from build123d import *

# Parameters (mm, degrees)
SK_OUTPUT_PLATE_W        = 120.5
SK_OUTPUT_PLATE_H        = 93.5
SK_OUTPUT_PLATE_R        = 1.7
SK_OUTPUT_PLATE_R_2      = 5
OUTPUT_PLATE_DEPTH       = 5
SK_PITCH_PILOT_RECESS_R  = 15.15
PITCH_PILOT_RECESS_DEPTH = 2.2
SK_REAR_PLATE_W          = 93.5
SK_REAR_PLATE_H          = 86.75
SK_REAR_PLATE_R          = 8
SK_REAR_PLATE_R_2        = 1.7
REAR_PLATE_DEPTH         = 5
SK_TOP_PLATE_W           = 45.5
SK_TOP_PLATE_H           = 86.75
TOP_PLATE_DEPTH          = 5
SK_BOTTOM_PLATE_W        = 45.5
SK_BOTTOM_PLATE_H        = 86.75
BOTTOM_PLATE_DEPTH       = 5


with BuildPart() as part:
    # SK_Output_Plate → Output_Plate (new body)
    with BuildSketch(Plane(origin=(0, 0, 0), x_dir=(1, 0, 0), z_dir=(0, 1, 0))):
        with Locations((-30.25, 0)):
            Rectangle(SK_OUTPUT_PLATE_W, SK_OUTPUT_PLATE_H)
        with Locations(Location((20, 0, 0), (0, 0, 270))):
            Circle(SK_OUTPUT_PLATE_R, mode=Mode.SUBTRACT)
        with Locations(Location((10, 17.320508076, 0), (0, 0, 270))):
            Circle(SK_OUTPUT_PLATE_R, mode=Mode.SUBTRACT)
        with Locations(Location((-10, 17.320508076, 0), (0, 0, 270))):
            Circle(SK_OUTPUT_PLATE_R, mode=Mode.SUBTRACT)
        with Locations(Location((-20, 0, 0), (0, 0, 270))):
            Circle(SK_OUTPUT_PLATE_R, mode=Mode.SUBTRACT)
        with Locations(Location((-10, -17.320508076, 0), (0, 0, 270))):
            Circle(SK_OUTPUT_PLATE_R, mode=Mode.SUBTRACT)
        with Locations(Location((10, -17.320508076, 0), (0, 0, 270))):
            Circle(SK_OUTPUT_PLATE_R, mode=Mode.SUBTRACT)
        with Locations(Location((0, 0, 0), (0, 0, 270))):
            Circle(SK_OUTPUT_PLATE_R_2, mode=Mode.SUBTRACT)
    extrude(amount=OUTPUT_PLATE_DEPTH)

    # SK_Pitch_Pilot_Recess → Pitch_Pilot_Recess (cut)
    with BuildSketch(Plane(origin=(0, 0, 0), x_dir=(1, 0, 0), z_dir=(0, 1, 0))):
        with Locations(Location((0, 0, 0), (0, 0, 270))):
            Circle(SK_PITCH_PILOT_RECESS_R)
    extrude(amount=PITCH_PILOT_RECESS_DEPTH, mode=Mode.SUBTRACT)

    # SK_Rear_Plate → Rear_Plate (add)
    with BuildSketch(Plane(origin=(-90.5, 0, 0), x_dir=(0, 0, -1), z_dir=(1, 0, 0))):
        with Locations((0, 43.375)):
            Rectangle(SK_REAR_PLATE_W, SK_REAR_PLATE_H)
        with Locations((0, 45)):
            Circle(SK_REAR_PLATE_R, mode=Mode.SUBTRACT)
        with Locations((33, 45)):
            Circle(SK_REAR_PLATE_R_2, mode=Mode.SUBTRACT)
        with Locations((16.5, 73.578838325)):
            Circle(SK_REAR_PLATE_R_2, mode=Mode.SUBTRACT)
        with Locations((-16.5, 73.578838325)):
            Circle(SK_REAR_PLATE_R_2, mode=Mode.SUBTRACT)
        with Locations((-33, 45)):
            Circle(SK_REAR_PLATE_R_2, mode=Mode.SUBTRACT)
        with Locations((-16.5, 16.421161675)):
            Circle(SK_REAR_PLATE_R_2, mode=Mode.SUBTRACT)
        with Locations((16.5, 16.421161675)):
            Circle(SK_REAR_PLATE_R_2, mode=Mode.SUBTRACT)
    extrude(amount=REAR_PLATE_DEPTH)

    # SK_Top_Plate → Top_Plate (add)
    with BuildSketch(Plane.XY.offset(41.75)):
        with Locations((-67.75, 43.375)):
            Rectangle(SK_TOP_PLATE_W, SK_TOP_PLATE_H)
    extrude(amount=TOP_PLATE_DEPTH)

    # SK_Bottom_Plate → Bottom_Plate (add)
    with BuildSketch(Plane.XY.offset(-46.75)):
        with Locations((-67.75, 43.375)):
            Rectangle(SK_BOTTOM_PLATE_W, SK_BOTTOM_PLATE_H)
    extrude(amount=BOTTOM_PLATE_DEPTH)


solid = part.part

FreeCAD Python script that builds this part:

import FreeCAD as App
import Part
import Sketcher

V = App.Vector

doc = App.newDocument("Part")
params = doc.addObject("Spreadsheet::Sheet", "Params")
for row, (alias, value) in enumerate([
    ("sketch1_diameter", "10 mm"),
    ("sketch1_diameter2", "3.4 mm"),
    ("sketch1_width", "120.5 mm"),
    ("sketch1_height", "93.5 mm"),
    ("pad1_length", "5 mm"),
    ("sketch2_diameter", "30.3 mm"),
    ("pocket1_length", "2.2 mm"),
    ("sketch3_diameter", "16 mm"),
    ("sketch3_diameter2", "3.4 mm"),
    ("sketch3_height", "93.5 mm"),
    ("sketch3_width", "86.75 mm"),
    ("pad2_length", "5 mm"),
    ("sketch4_width", "45.5 mm"),
    ("sketch4_height", "86.75 mm"),
    ("pad3_length", "5 mm"),
    ("sketch5_width", "45.5 mm"),
    ("sketch5_height", "86.75 mm"),
    ("pad4_length", "5 mm"),
], start=1):
    params.set(f"A{row}", alias)
    params.set(f"B{row}", "=" + value)
    params.setAlias(f"B{row}", alias)

body = doc.addObject("PartDesign::Body", "Body")

# Sketch on XZ plane
sketch1 = body.newObject("Sketcher::SketchObject", "Sketch")
sketch1.AttachmentSupport = (doc.getObject("XZ_Plane"), [""])
sketch1.MapMode = "FlatFace"
sketch1.addGeometry(Part.LineSegment(V(-90.5, -46.75, 0), V(-90.5, 46.75, 0)), False)
sketch1.addGeometry(Part.LineSegment(V(-90.5, 46.75, 0), V(30, 46.75, 0)), False)
sketch1.addGeometry(Part.LineSegment(V(30, 46.75, 0), V(30, -46.75, 0)), False)
sketch1.addGeometry(Part.LineSegment(V(30, -46.75, 0), V(-90.5, -46.75, 0)), False)
sketch1.addGeometry(Part.Circle(V(-10, 17.320508, 0), V(0, 0, 1), 1.7), False)
sketch1.addGeometry(Part.Circle(V(10, 17.320508, 0), V(0, 0, 1), 1.7), False)
sketch1.addGeometry(Part.Circle(V(-20, 0, 0), V(0, 0, 1), 1.7), False)
sketch1.addGeometry(Part.Circle(V(0, 0, 0), V(0, 0, 1), 5), False)
sketch1.addGeometry(Part.Circle(V(-10, -17.320508, 0), V(0, 0, 1), 1.7), False)
sketch1.addGeometry(Part.Circle(V(20, 0, 0), V(0, 0, 1), 1.7), False)
sketch1.addGeometry(Part.Circle(V(10, -17.320508, 0), V(0, 0, 1), 1.7), False)
sketch1.addConstraint(Sketcher.Constraint("Coincident", 0, 2, 1, 1))
sketch1.addConstraint(Sketcher.Constraint("Coincident", 1, 2, 2, 1))
sketch1.addConstraint(Sketcher.Constraint("Coincident", 2, 2, 3, 1))
sketch1.addConstraint(Sketcher.Constraint("Coincident", 3, 2, 0, 1))
sketch1.addConstraint(Sketcher.Constraint("Vertical", 0))
sketch1.addConstraint(Sketcher.Constraint("Horizontal", 1))
sketch1.addConstraint(Sketcher.Constraint("Vertical", 2))
sketch1.addConstraint(Sketcher.Constraint("Horizontal", 3))
sketch1.addConstraint(Sketcher.Constraint("Coincident", 7, 3, -1, 1))
sketch1.addConstraint(Sketcher.Constraint("Equal", 4, 5))
sketch1.addConstraint(Sketcher.Constraint("Equal", 5, 6))
sketch1.addConstraint(Sketcher.Constraint("Equal", 6, 8))
sketch1.addConstraint(Sketcher.Constraint("Equal", 8, 9))
sketch1.addConstraint(Sketcher.Constraint("Equal", 9, 10))
sketch1.addConstraint(Sketcher.Constraint("Symmetric", 5, 3, 8, 3, -1, 1))
sketch1.addConstraint(Sketcher.Constraint("Symmetric", 6, 3, 9, 3, -1, 1))
sketch1.addConstraint(Sketcher.Constraint("Symmetric", 4, 3, 10, 3, -1, 1))
sketch1.addConstraint(Sketcher.Constraint("Symmetric", 4, 3, 5, 3, -2))
sketch1.addConstraint(Sketcher.Constraint("PointOnObject", 6, 3, -1))
sketch1.addConstraint(Sketcher.Constraint("Diameter", 7, 10.0))
sketch1.addConstraint(Sketcher.Constraint("Diameter", 4, 3.4))
sketch1.addConstraint(Sketcher.Constraint("DistanceX", 1, 1, 1, 2, 120.5))
sketch1.addConstraint(Sketcher.Constraint("DistanceY", 0, 1, 0, 2, 93.5))
sketch1.addConstraint(Sketcher.Constraint("DistanceX", 4, 3, -1, 1, 10.0))
sketch1.addConstraint(Sketcher.Constraint("DistanceX", 6, 3, -1, 1, 20.0))
sketch1.addConstraint(Sketcher.Constraint("DistanceX", -1, 1, 1, 2, 30.0))
sketch1.addConstraint(Sketcher.Constraint("DistanceY", -1, 1, 0, 2, 46.75))
sketch1.addConstraint(Sketcher.Constraint("DistanceY", -1, 1, 4, 3, 17.320508))
sketch1.setExpression("Constraints[19]", "Params.sketch1_diameter")
sketch1.setExpression("Constraints[20]", "Params.sketch1_diameter2")
sketch1.setExpression("Constraints[21]", "Params.sketch1_width")
sketch1.setExpression("Constraints[22]", "Params.sketch1_height")
pad1 = body.newObject("PartDesign::Pad", "Pad")
pad1.Profile = sketch1
pad1.setExpression("Length", "Params.pad1_length")
pad1.Reversed = True

# Sketch on XZ plane
sketch2 = body.newObject("Sketcher::SketchObject", "Sketch001")
sketch2.AttachmentSupport = (doc.getObject("XZ_Plane"), [""])
sketch2.MapMode = "FlatFace"
sketch2.addGeometry(Part.Circle(V(0, 0, 0), V(0, 0, 1), 15.15), False)
sketch2.addConstraint(Sketcher.Constraint("Coincident", 0, 3, -1, 1))
sketch2.addConstraint(Sketcher.Constraint("Diameter", 0, 30.3))
sketch2.setExpression("Constraints[1]", "Params.sketch2_diameter")
pocket1 = body.newObject("PartDesign::Pocket", "Pocket")
pocket1.Profile = sketch2
pocket1.setExpression("Length", "Params.pocket1_length")

# Sketch on YZ plane
sketch3 = body.newObject("Sketcher::SketchObject", "Sketch002")
sketch3.AttachmentSupport = (doc.getObject("YZ_Plane"), [""])
sketch3.MapMode = "FlatFace"
sketch3.AttachmentOffset = App.Placement(V(0, 0, -90.5), App.Rotation())
sketch3.addGeometry(Part.LineSegment(V(86.75, 46.75, 0), V(0, 46.75, 0)), False)
sketch3.addGeometry(Part.LineSegment(V(0, 46.75, 0), V(0, -46.75, 0)), False)
sketch3.addGeometry(Part.LineSegment(V(0, -46.75, 0), V(86.75, -46.75, 0)), False)
sketch3.addGeometry(Part.LineSegment(V(86.75, -46.75, 0), V(86.75, 46.75, 0)), False)
sketch3.addGeometry(Part.Circle(V(16.421162, 16.5, 0), V(0, 0, 1), 1.7), False)
sketch3.addGeometry(Part.Circle(V(45, 33, 0), V(0, 0, 1), 1.7), False)
sketch3.addGeometry(Part.Circle(V(16.421162, -16.5, 0), V(0, 0, 1), 1.7), False)
sketch3.addGeometry(Part.Circle(V(45, 0, 0), V(0, 0, 1), 8), False)
sketch3.addGeometry(Part.Circle(V(45, -33, 0), V(0, 0, 1), 1.7), False)
sketch3.addGeometry(Part.Circle(V(73.578838, 16.5, 0), V(0, 0, 1), 1.7), False)
sketch3.addGeometry(Part.Circle(V(73.578838, -16.5, 0), V(0, 0, 1), 1.7), False)
sketch3.addConstraint(Sketcher.Constraint("Coincident", 0, 2, 1, 1))
sketch3.addConstraint(Sketcher.Constraint("Coincident", 1, 2, 2, 1))
sketch3.addConstraint(Sketcher.Constraint("Coincident", 2, 2, 3, 1))
sketch3.addConstraint(Sketcher.Constraint("Coincident", 3, 2, 0, 1))
sketch3.addConstraint(Sketcher.Constraint("Horizontal", 0))
sketch3.addConstraint(Sketcher.Constraint("Vertical", 1))
sketch3.addConstraint(Sketcher.Constraint("Horizontal", 2))
sketch3.addConstraint(Sketcher.Constraint("Vertical", 3))
sketch3.addConstraint(Sketcher.Constraint("Equal", 4, 5))
sketch3.addConstraint(Sketcher.Constraint("Equal", 5, 6))
sketch3.addConstraint(Sketcher.Constraint("Equal", 6, 8))
sketch3.addConstraint(Sketcher.Constraint("Equal", 8, 9))
sketch3.addConstraint(Sketcher.Constraint("Equal", 9, 10))
sketch3.addConstraint(Sketcher.Constraint("Symmetric", 0, 2, 1, 2, -1, 1))
sketch3.addConstraint(Sketcher.Constraint("Symmetric", 4, 3, 6, 3, -1))
sketch3.addConstraint(Sketcher.Constraint("Symmetric", 5, 3, 8, 3, -1))
sketch3.addConstraint(Sketcher.Constraint("Symmetric", 9, 3, 10, 3, -1))
sketch3.addConstraint(Sketcher.Constraint("PointOnObject", 7, 3, -1))
sketch3.addConstraint(Sketcher.Constraint("Horizontal", 4, 3, 9, 3))
sketch3.addConstraint(Sketcher.Constraint("Vertical", 5, 3, 7, 3))
sketch3.addConstraint(Sketcher.Constraint("Diameter", 7, 16.0))
sketch3.addConstraint(Sketcher.Constraint("Diameter", 4, 3.4))
sketch3.addConstraint(Sketcher.Constraint("DistanceY", 1, 2, 1, 1, 93.5))
sketch3.addConstraint(Sketcher.Constraint("DistanceX", -1, 1, 5, 3, 45.0))
sketch3.addConstraint(Sketcher.Constraint("DistanceY", -1, 1, 5, 3, 33.0))
sketch3.addConstraint(Sketcher.Constraint("DistanceY", 6, 3, 4, 3, 33.0))
sketch3.addConstraint(Sketcher.Constraint("DistanceX", 0, 2, 0, 1, 86.75))
sketch3.addConstraint(Sketcher.Constraint("DistanceX", -1, 1, 4, 3, 16.421162))
sketch3.addConstraint(Sketcher.Constraint("DistanceX", -1, 1, 9, 3, 73.578838))
sketch3.setExpression("Constraints[20]", "Params.sketch3_diameter")
sketch3.setExpression("Constraints[21]", "Params.sketch3_diameter2")
sketch3.setExpression("Constraints[22]", "Params.sketch3_height")
sketch3.setExpression("Constraints[26]", "Params.sketch3_width")
pad2 = body.newObject("PartDesign::Pad", "Pad001")
pad2.Profile = sketch3
pad2.setExpression("Length", "Params.pad2_length")

# Sketch on XY plane
sketch4 = body.newObject("Sketcher::SketchObject", "Sketch003")
sketch4.AttachmentSupport = (doc.getObject("XY_Plane"), [""])
sketch4.MapMode = "FlatFace"
sketch4.AttachmentOffset = App.Placement(V(0, 0, 41.75), App.Rotation())
sketch4.addGeometry(Part.LineSegment(V(-90.5, 86.75, 0), V(-90.5, 0, 0)), False)
sketch4.addGeometry(Part.LineSegment(V(-90.5, 0, 0), V(-45, 0, 0)), False)
sketch4.addGeometry(Part.LineSegment(V(-45, 0, 0), V(-45, 86.75, 0)), False)
sketch4.addGeometry(Part.LineSegment(V(-45, 86.75, 0), V(-90.5, 86.75, 0)), False)
sketch4.addConstraint(Sketcher.Constraint("Coincident", 0, 2, 1, 1))
sketch4.addConstraint(Sketcher.Constraint("Coincident", 1, 2, 2, 1))
sketch4.addConstraint(Sketcher.Constraint("Coincident", 2, 2, 3, 1))
sketch4.addConstraint(Sketcher.Constraint("Coincident", 3, 2, 0, 1))
sketch4.addConstraint(Sketcher.Constraint("Vertical", 0))
sketch4.addConstraint(Sketcher.Constraint("Horizontal", 1))
sketch4.addConstraint(Sketcher.Constraint("Vertical", 2))
sketch4.addConstraint(Sketcher.Constraint("Horizontal", 3))
sketch4.addConstraint(Sketcher.Constraint("PointOnObject", 0, 2, -1))
sketch4.addConstraint(Sketcher.Constraint("DistanceX", 1, 1, 1, 2, 45.5))
sketch4.addConstraint(Sketcher.Constraint("DistanceX", 1, 2, -1, 1, 45.0))
sketch4.addConstraint(Sketcher.Constraint("DistanceY", 0, 2, 0, 1, 86.75))
sketch4.setExpression("Constraints[9]", "Params.sketch4_width")
sketch4.setExpression("Constraints[11]", "Params.sketch4_height")
pad3 = body.newObject("PartDesign::Pad", "Pad002")
pad3.Profile = sketch4
pad3.setExpression("Length", "Params.pad3_length")

# Sketch on XY plane
sketch5 = body.newObject("Sketcher::SketchObject", "Sketch004")
sketch5.AttachmentSupport = (doc.getObject("XY_Plane"), [""])
sketch5.MapMode = "FlatFace"
sketch5.AttachmentOffset = App.Placement(V(0, 0, -46.75), App.Rotation())
sketch5.addGeometry(Part.LineSegment(V(-90.5, 86.75, 0), V(-90.5, 0, 0)), False)
sketch5.addGeometry(Part.LineSegment(V(-90.5, 0, 0), V(-45, 0, 0)), False)
sketch5.addGeometry(Part.LineSegment(V(-45, 0, 0), V(-45, 86.75, 0)), False)
sketch5.addGeometry(Part.LineSegment(V(-45, 86.75, 0), V(-90.5, 86.75, 0)), False)
sketch5.addConstraint(Sketcher.Constraint("Coincident", 0, 2, 1, 1))
sketch5.addConstraint(Sketcher.Constraint("Coincident", 1, 2, 2, 1))
sketch5.addConstraint(Sketcher.Constraint("Coincident", 2, 2, 3, 1))
sketch5.addConstraint(Sketcher.Constraint("Coincident", 3, 2, 0, 1))
sketch5.addConstraint(Sketcher.Constraint("Vertical", 0))
sketch5.addConstraint(Sketcher.Constraint("Horizontal", 1))
sketch5.addConstraint(Sketcher.Constraint("Vertical", 2))
sketch5.addConstraint(Sketcher.Constraint("Horizontal", 3))
sketch5.addConstraint(Sketcher.Constraint("PointOnObject", 0, 2, -1))
sketch5.addConstraint(Sketcher.Constraint("DistanceX", 1, 1, 1, 2, 45.5))
sketch5.addConstraint(Sketcher.Constraint("DistanceX", 1, 2, -1, 1, 45.0))
sketch5.addConstraint(Sketcher.Constraint("DistanceY", 0, 2, 0, 1, 86.75))
sketch5.setExpression("Constraints[9]", "Params.sketch5_width")
sketch5.setExpression("Constraints[11]", "Params.sketch5_height")
pad4 = body.newObject("PartDesign::Pad", "Pad003")
pad4.Profile = sketch5
pad4.setExpression("Length", "Params.pad4_length")

doc.recompute()
